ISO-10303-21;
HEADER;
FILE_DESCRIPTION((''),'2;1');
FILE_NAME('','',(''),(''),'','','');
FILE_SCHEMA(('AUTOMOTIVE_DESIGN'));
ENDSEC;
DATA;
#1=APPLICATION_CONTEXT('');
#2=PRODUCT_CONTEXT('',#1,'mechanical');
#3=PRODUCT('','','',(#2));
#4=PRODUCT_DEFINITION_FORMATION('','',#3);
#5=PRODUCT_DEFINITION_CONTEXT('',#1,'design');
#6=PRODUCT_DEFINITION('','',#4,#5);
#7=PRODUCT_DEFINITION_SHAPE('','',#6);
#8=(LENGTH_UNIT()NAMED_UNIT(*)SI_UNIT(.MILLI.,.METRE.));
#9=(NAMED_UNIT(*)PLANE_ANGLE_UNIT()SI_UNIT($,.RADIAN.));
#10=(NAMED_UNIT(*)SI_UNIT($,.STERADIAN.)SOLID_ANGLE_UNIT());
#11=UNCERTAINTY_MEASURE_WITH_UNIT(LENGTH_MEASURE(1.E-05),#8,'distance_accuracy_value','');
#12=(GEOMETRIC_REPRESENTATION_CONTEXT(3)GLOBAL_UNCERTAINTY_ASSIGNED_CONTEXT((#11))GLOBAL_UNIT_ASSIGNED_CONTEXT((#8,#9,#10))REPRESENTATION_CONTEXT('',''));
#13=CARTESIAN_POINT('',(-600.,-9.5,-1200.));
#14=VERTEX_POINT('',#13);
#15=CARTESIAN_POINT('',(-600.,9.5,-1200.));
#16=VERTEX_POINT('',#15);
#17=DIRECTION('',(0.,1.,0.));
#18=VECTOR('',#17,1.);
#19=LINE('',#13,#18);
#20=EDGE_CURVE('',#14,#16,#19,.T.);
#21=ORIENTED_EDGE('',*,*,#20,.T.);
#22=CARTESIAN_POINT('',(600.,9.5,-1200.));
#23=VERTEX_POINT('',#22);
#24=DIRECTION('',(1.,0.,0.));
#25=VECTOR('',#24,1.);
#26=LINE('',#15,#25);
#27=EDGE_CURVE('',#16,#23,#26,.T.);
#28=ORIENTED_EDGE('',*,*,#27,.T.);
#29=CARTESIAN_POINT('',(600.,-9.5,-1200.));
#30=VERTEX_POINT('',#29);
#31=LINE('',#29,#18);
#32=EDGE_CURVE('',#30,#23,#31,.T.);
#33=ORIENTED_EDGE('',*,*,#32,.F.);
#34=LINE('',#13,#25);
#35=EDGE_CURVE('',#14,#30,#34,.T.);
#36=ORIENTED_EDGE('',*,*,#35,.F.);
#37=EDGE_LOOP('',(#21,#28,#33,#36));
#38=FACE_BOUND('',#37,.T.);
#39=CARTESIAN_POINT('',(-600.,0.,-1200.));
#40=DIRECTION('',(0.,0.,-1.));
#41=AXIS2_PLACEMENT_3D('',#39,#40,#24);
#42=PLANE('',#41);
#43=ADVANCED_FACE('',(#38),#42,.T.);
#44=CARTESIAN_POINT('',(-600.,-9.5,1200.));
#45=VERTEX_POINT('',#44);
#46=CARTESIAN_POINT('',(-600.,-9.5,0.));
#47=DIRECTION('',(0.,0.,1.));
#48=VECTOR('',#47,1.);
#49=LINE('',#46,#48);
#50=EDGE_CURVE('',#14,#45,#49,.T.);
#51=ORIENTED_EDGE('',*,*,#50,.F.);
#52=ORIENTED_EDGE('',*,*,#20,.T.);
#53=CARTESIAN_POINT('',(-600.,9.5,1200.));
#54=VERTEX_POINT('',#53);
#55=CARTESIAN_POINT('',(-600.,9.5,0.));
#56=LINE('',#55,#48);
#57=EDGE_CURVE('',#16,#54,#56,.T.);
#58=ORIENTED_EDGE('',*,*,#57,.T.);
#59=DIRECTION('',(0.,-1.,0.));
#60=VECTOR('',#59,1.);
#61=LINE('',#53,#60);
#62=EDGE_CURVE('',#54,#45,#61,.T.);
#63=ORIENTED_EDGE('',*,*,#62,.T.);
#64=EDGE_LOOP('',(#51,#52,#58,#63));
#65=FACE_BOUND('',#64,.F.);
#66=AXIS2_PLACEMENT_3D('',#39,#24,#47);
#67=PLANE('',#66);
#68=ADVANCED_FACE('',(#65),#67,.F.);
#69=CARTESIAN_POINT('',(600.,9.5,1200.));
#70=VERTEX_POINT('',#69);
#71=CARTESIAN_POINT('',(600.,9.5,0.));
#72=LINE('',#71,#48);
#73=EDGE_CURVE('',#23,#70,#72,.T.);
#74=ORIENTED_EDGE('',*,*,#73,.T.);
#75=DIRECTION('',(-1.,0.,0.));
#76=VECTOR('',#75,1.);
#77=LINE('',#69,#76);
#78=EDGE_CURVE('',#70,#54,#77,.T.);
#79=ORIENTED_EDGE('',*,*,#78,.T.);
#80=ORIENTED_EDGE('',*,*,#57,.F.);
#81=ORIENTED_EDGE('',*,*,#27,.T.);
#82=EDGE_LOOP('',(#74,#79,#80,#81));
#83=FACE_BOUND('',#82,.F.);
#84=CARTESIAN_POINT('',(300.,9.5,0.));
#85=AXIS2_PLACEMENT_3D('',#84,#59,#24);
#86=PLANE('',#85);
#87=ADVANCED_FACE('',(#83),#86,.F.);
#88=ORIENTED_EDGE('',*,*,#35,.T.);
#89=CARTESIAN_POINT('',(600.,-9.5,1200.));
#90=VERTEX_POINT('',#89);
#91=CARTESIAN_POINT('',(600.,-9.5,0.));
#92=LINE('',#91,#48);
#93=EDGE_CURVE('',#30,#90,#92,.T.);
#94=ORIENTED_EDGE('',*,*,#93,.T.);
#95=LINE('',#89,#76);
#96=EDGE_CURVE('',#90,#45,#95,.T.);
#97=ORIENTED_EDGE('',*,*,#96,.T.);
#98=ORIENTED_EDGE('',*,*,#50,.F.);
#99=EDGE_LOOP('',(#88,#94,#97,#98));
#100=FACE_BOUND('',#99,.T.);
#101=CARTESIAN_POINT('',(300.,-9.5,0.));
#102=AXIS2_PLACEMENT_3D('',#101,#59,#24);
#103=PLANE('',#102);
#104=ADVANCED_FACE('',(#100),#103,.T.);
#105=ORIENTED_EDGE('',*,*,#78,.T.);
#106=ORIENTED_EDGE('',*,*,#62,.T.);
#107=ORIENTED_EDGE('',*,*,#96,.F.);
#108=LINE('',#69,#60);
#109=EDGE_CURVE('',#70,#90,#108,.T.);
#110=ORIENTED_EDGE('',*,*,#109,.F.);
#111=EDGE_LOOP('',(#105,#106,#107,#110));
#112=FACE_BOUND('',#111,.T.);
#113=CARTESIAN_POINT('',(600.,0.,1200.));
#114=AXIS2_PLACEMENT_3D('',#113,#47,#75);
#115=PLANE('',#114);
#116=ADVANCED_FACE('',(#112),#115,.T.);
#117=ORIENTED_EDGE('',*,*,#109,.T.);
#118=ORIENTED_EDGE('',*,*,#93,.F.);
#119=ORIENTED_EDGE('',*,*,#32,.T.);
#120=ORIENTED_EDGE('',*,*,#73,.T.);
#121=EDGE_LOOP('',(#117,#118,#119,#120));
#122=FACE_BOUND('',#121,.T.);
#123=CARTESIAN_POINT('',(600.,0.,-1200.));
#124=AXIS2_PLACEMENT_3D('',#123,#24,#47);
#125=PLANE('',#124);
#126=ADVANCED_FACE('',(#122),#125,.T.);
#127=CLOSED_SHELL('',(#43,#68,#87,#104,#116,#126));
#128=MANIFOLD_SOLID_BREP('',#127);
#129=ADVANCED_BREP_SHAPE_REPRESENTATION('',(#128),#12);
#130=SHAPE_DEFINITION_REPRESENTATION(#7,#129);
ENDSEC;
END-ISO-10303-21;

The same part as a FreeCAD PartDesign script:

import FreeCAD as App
import Part
import Sketcher


def add_polygon(sketch, points):
    """Adds a closed chain of lines whose ends are joined by coincident constraints."""
    first, n = sketch.GeometryCount, len(points)
    for a, b in zip(points, points[1:] + points[:1]):
        sketch.addGeometry(Part.LineSegment(App.Vector(*a, 0), App.Vector(*b, 0)), False)
    for i in range(n):
        sketch.addConstraint(Sketcher.Constraint("Coincident", first + i, 2, first + (i + 1) % n, 1))

doc = App.newDocument("Part")
body = doc.addObject("PartDesign::Body", "Body")

# Sketch on XZ plane
sketch1 = doc.addObject("Sketcher::SketchObject", "Sketch")
body.addObject(sketch1)
sketch1.AttachmentSupport = (doc.XZ_Plane, [""])
sketch1.MapMode = "FlatFace"
add_polygon(sketch1, [(600, -1200), (600, 1200), (-600, 1200), (-600, -1200)])  # lines 0-3
sketch1.addConstraint(Sketcher.Constraint("Vertical", 0))
sketch1.addConstraint(Sketcher.Constraint("Horizontal", 1))
sketch1.addConstraint(Sketcher.Constraint("Vertical", 2))
sketch1.addConstraint(Sketcher.Constraint("Horizontal", 3))
sketch1.addConstraint(Sketcher.Constraint("Symmetric", 0, 2, 2, 2, -1, 1))
sketch1.addConstraint(Sketcher.Constraint("DistanceX", 1, 2, 1, 1, 1200.0))
sketch1.addConstraint(Sketcher.Constraint("DistanceY", 0, 1, 0, 2, 2400.0))
pad1 = doc.addObject("PartDesign::Pad", "Pad")
body.addObject(pad1)
pad1.Profile = sketch1
pad1.Length = 19
pad1.Midplane = True

doc.recompute()
